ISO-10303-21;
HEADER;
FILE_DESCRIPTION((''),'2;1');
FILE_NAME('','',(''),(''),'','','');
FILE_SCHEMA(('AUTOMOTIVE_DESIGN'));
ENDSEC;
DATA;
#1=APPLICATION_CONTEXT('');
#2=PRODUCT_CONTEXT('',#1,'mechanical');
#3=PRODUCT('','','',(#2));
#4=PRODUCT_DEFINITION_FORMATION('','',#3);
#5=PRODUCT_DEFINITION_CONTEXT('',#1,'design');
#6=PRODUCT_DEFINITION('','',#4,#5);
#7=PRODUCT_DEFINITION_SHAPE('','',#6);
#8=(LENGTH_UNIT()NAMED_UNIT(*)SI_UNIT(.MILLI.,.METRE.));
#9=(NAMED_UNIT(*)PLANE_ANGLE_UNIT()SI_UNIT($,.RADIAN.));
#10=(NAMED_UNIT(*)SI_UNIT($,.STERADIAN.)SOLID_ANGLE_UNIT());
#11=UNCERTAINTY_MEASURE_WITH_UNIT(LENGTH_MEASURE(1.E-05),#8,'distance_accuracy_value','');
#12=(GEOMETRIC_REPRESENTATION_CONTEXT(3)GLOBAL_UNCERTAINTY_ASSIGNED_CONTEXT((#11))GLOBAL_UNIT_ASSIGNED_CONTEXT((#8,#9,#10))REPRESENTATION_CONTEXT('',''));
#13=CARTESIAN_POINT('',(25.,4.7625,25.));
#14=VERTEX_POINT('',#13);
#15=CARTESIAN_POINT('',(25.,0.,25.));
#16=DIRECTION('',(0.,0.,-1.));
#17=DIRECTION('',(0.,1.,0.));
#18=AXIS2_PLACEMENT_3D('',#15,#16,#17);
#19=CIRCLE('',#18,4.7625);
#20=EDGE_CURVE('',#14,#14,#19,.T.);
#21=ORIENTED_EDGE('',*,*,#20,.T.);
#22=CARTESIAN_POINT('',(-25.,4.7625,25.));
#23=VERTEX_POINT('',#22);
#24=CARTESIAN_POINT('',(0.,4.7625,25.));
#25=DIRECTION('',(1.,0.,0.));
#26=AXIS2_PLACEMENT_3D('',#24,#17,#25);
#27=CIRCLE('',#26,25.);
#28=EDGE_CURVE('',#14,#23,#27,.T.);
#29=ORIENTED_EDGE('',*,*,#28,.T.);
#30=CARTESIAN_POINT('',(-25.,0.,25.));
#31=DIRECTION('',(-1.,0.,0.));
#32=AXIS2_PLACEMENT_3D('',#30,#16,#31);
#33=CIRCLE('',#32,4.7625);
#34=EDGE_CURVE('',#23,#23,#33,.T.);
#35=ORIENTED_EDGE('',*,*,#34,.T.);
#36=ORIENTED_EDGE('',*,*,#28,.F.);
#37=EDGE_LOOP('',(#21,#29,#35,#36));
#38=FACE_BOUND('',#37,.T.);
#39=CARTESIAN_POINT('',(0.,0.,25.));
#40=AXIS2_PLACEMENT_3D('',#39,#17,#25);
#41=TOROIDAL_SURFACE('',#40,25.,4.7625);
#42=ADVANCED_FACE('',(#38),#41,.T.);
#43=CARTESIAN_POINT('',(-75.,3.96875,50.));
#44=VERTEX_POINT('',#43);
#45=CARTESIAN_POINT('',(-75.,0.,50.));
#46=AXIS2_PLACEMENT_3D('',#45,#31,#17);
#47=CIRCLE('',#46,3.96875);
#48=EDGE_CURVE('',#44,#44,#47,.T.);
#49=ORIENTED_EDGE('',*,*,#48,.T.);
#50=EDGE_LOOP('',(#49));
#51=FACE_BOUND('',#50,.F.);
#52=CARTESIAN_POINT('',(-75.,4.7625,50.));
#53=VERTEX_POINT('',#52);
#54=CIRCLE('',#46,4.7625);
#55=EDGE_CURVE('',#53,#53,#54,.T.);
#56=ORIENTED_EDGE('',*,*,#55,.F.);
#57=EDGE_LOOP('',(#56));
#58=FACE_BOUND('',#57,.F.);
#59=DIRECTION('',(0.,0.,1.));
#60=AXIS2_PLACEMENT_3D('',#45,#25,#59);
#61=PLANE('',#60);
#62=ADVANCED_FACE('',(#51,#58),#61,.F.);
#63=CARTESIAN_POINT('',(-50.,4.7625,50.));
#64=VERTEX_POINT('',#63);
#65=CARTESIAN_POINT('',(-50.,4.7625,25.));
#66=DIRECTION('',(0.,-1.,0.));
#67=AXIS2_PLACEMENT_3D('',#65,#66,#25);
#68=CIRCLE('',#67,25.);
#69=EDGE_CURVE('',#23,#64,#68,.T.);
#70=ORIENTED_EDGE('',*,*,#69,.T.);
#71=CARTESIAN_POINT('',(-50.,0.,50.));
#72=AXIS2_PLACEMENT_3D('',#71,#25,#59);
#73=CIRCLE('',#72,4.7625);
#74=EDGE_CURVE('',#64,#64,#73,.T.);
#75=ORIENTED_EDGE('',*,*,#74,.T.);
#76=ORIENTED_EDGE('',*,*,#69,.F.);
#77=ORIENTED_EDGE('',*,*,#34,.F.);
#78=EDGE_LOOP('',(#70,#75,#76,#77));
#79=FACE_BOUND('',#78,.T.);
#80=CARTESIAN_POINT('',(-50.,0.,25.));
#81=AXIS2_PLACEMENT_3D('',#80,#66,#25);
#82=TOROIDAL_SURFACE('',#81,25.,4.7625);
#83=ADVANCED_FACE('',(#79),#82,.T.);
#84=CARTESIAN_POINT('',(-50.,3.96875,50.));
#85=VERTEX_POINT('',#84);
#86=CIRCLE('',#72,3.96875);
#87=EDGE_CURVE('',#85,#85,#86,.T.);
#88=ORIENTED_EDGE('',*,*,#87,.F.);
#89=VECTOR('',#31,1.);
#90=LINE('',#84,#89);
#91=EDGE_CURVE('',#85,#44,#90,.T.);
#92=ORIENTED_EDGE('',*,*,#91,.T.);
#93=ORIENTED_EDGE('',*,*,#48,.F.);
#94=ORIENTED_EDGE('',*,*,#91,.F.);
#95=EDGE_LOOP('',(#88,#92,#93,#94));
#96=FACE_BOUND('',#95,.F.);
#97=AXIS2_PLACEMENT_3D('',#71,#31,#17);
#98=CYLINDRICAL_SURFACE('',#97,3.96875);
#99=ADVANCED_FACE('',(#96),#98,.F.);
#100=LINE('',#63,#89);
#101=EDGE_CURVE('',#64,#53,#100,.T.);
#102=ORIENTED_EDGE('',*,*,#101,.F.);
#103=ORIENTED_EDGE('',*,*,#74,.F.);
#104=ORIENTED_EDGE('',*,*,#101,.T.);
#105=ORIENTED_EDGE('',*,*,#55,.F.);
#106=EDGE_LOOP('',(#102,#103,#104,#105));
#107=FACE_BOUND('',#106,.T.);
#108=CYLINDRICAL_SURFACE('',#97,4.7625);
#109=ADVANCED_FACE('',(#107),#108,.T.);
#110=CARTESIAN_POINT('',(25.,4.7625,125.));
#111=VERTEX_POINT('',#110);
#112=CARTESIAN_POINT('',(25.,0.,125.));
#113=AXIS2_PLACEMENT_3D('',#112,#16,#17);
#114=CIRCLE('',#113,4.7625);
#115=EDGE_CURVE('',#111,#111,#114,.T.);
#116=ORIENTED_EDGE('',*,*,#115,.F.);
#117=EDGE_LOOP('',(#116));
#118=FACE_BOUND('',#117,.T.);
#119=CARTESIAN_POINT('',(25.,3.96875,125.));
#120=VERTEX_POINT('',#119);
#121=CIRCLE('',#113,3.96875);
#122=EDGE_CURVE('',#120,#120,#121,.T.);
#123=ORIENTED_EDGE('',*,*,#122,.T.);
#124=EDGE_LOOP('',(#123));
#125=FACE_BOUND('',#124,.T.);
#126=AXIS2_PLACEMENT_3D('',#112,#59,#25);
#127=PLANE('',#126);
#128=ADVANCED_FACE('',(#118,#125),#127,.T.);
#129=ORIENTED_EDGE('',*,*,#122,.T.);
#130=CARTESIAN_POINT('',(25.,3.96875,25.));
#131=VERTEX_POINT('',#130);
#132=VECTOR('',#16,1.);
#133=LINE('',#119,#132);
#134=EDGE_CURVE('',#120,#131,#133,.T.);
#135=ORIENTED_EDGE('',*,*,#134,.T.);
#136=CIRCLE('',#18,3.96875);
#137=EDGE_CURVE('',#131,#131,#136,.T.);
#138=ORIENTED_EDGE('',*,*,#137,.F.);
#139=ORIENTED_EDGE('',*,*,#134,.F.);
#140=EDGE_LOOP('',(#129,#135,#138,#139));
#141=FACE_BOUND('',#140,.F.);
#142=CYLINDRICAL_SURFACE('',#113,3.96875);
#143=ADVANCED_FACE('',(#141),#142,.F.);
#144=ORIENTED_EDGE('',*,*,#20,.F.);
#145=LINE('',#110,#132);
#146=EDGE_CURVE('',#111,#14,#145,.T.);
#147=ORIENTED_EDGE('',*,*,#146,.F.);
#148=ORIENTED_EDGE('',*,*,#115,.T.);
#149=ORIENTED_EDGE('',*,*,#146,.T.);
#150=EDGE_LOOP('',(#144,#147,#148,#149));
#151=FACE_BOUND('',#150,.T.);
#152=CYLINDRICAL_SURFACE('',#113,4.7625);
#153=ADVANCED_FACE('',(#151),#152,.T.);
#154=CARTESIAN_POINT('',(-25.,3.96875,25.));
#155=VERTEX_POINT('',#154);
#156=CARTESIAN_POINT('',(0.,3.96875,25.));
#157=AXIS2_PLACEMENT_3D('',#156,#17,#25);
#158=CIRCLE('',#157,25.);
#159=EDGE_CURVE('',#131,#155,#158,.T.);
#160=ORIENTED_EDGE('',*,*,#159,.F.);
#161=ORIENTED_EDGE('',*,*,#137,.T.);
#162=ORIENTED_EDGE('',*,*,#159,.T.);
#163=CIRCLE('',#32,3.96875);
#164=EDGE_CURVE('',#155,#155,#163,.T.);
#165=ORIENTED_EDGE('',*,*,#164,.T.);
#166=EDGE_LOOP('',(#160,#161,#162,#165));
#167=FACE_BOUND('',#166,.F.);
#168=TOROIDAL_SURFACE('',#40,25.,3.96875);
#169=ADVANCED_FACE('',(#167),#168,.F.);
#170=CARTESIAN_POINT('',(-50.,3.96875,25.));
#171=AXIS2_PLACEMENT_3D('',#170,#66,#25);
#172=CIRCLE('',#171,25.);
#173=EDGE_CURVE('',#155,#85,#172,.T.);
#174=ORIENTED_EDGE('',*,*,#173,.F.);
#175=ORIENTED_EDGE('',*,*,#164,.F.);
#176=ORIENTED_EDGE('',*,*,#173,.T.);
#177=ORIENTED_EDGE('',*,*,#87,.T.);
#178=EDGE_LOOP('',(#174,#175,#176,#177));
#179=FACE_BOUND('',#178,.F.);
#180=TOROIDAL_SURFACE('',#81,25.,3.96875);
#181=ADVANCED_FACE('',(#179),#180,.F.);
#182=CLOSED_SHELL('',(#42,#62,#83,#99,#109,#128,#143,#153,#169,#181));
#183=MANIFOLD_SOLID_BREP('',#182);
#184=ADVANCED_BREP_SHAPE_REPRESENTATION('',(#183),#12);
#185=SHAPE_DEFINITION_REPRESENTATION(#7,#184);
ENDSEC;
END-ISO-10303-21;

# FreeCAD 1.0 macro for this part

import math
import FreeCAD as App
import Part
import Sketcher
Q = App.Units.Quantity

doc = App.newDocument("Part")
body = doc.addObject("PartDesign::Body", "Body")

# Sketch on YZ plane
sketch1 = doc.addObject("Sketcher::SketchObject", "Sketch")
body.addObject(sketch1)
sketch1.AttachmentSupport = (doc.YZ_Plane, [""])
sketch1.MapMode = "FlatFace"
sketch1.addGeometry(Part.Circle(App.Vector(0, 0, 0), App.Vector(0, 0, 1), 4.8), False)
sketch1.addConstraint([
    Sketcher.Constraint("Coincident", 0, 3, -1, 1),
    Sketcher.Constraint("Diameter", 0, Q("9.525 mm")),
])

# Sketch on XZ plane
sketch2 = doc.addObject("Sketcher::SketchObject", "Sketch001")
body.addObject(sketch2)
sketch2.AttachmentSupport = (doc.XZ_Plane, [""])
sketch2.MapMode = "FlatFace"
sketch2.addGeometry([
    Part.LineSegment(App.Vector(25, 125, 0), App.Vector(25, 25, 0)),
    Part.ArcOfCircle(Part.Circle(App.Vector(0, 25, 0), App.Vector(0, 0, 1), 25), math.radians(180), math.radians(360)),
    Part.ArcOfCircle(Part.Circle(App.Vector(-50, 25, 0), App.Vector(0, 0, 1), 25), math.radians(0), math.radians(90)),
    Part.LineSegment(App.Vector(-50, 50, 0), App.Vector(-75, 50, 0)),
], False)
sketch2.addConstraint([
    Sketcher.Constraint("Tangent", 0, 2, 1, 2),
    Sketcher.Constraint("Tangent", 1, 1, 2, 1),
    Sketcher.Constraint("Tangent", 2, 2, 3, 1),
    Sketcher.Constraint("Vertical", 0),
    Sketcher.Constraint("Horizontal", 3),
    Sketcher.Constraint("Equal", 1, 2),
    Sketcher.Constraint("Symmetric", 0, 2, 1, 1, -2),
    Sketcher.Constraint("Radius", 1, Q("25 mm")),
    Sketcher.Constraint("DistanceX", 3, 2, 3, 1, Q("25 mm")),
    Sketcher.Constraint("DistanceY", 0, 2, 0, 1, Q("100 mm")),
    Sketcher.Constraint("DistanceY", -1, 1, 1, 3, Q("25 mm")),
])
doc.recompute()

additivepipe = doc.addObject("PartDesign::AdditivePipe", "AdditivePipe")
body.addObject(additivepipe)
additivepipe.Profile = sketch1
additivepipe.Spine = (sketch2, ["Edge1", "Edge2", "Edge3", "Edge4"])

# Sketch on YZ plane
sketch3 = doc.addObject("Sketcher::SketchObject", "Sketch002")
body.addObject(sketch3)
sketch3.AttachmentSupport = (doc.YZ_Plane, [""])
sketch3.MapMode = "FlatFace"
sketch3.addGeometry(Part.Circle(App.Vector(0, 0, 0), App.Vector(0, 0, 1), 4), False)
sketch3.addConstraint([
    Sketcher.Constraint("Coincident", 0, 3, -1, 1),
    Sketcher.Constraint("Diameter", 0, Q("7.9375 mm")),
])

# Sketch on XZ plane
sketch4 = doc.addObject("Sketcher::SketchObject", "Sketch003")
body.addObject(sketch4)
sketch4.AttachmentSupport = (doc.XZ_Plane, [""])
sketch4.MapMode = "FlatFace"
sketch4.addGeometry([
    Part.LineSegment(App.Vector(25, 125, 0), App.Vector(25, 25, 0)),
    Part.ArcOfCircle(Part.Circle(App.Vector(0, 25, 0), App.Vector(0, 0, 1), 25), math.radians(180), math.radians(360)),
    Part.ArcOfCircle(Part.Circle(App.Vector(-50, 25, 0), App.Vector(0, 0, 1), 25), math.radians(0), math.radians(90)),
    Part.LineSegment(App.Vector(-50, 50, 0), App.Vector(-75, 50, 0)),
], False)
sketch4.addConstraint([
    Sketcher.Constraint("Tangent", 0, 2, 1, 2),
    Sketcher.Constraint("Tangent", 1, 1, 2, 1),
    Sketcher.Constraint("Tangent", 2, 2, 3, 1),
    Sketcher.Constraint("Vertical", 0),
    Sketcher.Constraint("Horizontal", 3),
    Sketcher.Constraint("Equal", 1, 2),
    Sketcher.Constraint("Symmetric", 0, 2, 1, 1, -2),
    Sketcher.Constraint("Radius", 1, Q("25 mm")),
    Sketcher.Constraint("DistanceX", 3, 2, 3, 1, Q("25 mm")),
    Sketcher.Constraint("DistanceY", 0, 2, 0, 1, Q("100 mm")),
    Sketcher.Constraint("DistanceY", -1, 1, 1, 3, Q("25 mm")),
])
doc.recompute()

subtractivepipe = doc.addObject("PartDesign::SubtractivePipe", "SubtractivePipe")
body.addObject(subtractivepipe)
subtractivepipe.Profile = sketch3
subtractivepipe.Spine = (sketch4, ["Edge1", "Edge2", "Edge3", "Edge4"])

doc.recompute()
